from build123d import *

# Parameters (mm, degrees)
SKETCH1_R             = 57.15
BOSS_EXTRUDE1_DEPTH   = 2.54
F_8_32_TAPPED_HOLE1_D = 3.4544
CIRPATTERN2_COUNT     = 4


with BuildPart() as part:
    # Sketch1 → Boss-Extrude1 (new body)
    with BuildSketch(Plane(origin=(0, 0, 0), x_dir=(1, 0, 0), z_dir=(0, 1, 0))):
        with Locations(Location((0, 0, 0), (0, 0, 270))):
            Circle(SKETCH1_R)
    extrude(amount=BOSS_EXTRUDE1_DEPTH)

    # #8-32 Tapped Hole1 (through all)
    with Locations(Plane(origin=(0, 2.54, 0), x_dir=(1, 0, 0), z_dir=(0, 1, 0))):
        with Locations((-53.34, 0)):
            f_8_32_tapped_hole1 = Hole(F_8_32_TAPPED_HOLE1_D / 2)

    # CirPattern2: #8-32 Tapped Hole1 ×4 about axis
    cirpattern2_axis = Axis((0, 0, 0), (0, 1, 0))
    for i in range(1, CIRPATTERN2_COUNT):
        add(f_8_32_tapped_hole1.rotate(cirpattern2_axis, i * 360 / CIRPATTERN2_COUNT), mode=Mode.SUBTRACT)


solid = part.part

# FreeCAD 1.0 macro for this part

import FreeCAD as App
import Part
import Sketcher
from FreeCAD import Vector
Q = App.Units.Quantity

doc = App.newDocument("Part")
body = doc.addObject("PartDesign::Body", "Body")

# Sketch on XZ plane
sketch1 = body.newObject("Sketcher::SketchObject", "Sketch")
sketch1.AttachmentSupport = (doc.getObject("XZ_Plane"), [""])
sketch1.MapMode = "FlatFace"
sketch1.addGeometry(Part.Circle(Vector(0, 0, 0), Vector(0, 0, 1), 57), False)
sketch1.addConstraint([
    Sketcher.Constraint("Coincident", 0, 3, -1, 1),
    Sketcher.Constraint("Diameter", 0, Q("4.5 in")),
])
pad1 = body.newObject("PartDesign::Pad", "Pad")
pad1.Profile = sketch1
pad1.Length = Q("0.1 in")
pad1.Reversed = True

# Sketch on XZ plane
sketch2 = body.newObject("Sketcher::SketchObject", "Sketch001")
sketch2.AttachmentSupport = (doc.getObject("XZ_Plane"), [""])
sketch2.MapMode = "FlatFace"
sketch2.AttachmentOffset = App.Placement(Vector(0, 0, -0.1 * 25.4), App.Rotation())
sketch2.addGeometry(Part.Circle(Vector(-53.3, 0, 0), Vector(0, 0, 1), 1.7), False)
sketch2.addConstraint([
    Sketcher.Constraint("PointOnObject", 0, 3, -1),
    Sketcher.Constraint("Diameter", 0, Q("0.136 in")),
    Sketcher.Constraint("DistanceX", 0, 3, -1, 1, Q("2.1 in")),
])
doc.recompute()
hole = body.newObject("PartDesign::Hole", "Hole")
hole.Profile = sketch2
hole.ThreadType = "None"
hole.Diameter = Q("0.136 in")
hole.DepthType = "ThroughAll"
hole.Reversed = True
doc.recompute()

polarpattern = body.newObject("PartDesign::PolarPattern", "PolarPattern")
polarpattern.Originals = [hole]
polarpattern.Axis = (doc.getObject("Y_Axis"), [""])
polarpattern.Angle = 360
polarpattern.Occurrences = 4
body.Tip = polarpattern

doc.recompute()
